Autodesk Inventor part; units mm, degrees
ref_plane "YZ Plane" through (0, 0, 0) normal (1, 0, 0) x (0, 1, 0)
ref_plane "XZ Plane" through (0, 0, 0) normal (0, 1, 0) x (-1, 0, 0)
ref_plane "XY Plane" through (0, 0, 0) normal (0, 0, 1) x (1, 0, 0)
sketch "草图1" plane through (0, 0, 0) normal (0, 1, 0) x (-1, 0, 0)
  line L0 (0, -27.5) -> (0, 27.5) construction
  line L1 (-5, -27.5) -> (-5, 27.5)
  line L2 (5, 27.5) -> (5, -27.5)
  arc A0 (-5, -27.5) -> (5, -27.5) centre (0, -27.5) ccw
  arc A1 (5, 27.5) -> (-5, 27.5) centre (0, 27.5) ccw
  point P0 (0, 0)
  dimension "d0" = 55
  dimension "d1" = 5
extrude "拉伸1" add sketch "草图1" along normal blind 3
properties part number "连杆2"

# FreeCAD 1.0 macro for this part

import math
import FreeCAD as App
import Part
import Sketcher

doc = App.newDocument("Part")
params = doc.addObject("Spreadsheet::Sheet", "Params")
for row, (alias, value) in enumerate([
    ("sketch1_radius", "5 mm"),
    ("sketch1_height", "55 mm"),
    ("pad1_length", "3 mm"),
], start=1):
    params.set(f"A{row}", alias)
    params.set(f"B{row}", "=" + value)
    params.setAlias(f"B{row}", alias)

body = doc.addObject("PartDesign::Body", "Body")

# Sketch on XZ plane
sketch1 = body.newObject("Sketcher::SketchObject", "Sketch")
sketch1.AttachmentSupport = (doc.getObject("XZ_Plane"), [""])
sketch1.MapMode = "FlatFace"
sketch1.addGeometry([
    Part.LineSegment(App.Vector(5, 28, 0), App.Vector(5, -28, 0)),
    Part.ArcOfCircle(Part.Circle(App.Vector(0, -28, 0), App.Vector(0, 0, 1), 5), math.radians(180), math.radians(360)),
    Part.LineSegment(App.Vector(-5, -28, 0), App.Vector(-5, 28, 0)),
    Part.ArcOfCircle(Part.Circle(App.Vector(0, 28, 0), App.Vector(0, 0, 1), 5), math.radians(0), math.radians(180)),
], False)
sketch1.addConstraint([
    Sketcher.Constraint("Tangent", 0, 2, 1, 2),
    Sketcher.Constraint("Tangent", 1, 1, 2, 1),
    Sketcher.Constraint("Tangent", 2, 2, 3, 2),
    Sketcher.Constraint("Tangent", 3, 1, 0, 1),
    Sketcher.Constraint("Vertical", 0),
    Sketcher.Constraint("Vertical", 2),
    Sketcher.Constraint("Symmetric", 1, 3, 3, 3, -1, 1),
    Sketcher.Constraint("Radius", 1, 5.0),
    Sketcher.Constraint("DistanceY", 0, 2, 0, 1, 55.0),
])
sketch1.setExpression("Constraints[7]", "Params.sketch1_radius")
sketch1.setExpression("Constraints[8]", "Params.sketch1_height")
pad1 = body.newObject("PartDesign::Pad", "Pad")
pad1.Profile = sketch1
pad1.setExpression("Length", "Params.pad1_length")
pad1.Reversed = True

doc.recompute()
